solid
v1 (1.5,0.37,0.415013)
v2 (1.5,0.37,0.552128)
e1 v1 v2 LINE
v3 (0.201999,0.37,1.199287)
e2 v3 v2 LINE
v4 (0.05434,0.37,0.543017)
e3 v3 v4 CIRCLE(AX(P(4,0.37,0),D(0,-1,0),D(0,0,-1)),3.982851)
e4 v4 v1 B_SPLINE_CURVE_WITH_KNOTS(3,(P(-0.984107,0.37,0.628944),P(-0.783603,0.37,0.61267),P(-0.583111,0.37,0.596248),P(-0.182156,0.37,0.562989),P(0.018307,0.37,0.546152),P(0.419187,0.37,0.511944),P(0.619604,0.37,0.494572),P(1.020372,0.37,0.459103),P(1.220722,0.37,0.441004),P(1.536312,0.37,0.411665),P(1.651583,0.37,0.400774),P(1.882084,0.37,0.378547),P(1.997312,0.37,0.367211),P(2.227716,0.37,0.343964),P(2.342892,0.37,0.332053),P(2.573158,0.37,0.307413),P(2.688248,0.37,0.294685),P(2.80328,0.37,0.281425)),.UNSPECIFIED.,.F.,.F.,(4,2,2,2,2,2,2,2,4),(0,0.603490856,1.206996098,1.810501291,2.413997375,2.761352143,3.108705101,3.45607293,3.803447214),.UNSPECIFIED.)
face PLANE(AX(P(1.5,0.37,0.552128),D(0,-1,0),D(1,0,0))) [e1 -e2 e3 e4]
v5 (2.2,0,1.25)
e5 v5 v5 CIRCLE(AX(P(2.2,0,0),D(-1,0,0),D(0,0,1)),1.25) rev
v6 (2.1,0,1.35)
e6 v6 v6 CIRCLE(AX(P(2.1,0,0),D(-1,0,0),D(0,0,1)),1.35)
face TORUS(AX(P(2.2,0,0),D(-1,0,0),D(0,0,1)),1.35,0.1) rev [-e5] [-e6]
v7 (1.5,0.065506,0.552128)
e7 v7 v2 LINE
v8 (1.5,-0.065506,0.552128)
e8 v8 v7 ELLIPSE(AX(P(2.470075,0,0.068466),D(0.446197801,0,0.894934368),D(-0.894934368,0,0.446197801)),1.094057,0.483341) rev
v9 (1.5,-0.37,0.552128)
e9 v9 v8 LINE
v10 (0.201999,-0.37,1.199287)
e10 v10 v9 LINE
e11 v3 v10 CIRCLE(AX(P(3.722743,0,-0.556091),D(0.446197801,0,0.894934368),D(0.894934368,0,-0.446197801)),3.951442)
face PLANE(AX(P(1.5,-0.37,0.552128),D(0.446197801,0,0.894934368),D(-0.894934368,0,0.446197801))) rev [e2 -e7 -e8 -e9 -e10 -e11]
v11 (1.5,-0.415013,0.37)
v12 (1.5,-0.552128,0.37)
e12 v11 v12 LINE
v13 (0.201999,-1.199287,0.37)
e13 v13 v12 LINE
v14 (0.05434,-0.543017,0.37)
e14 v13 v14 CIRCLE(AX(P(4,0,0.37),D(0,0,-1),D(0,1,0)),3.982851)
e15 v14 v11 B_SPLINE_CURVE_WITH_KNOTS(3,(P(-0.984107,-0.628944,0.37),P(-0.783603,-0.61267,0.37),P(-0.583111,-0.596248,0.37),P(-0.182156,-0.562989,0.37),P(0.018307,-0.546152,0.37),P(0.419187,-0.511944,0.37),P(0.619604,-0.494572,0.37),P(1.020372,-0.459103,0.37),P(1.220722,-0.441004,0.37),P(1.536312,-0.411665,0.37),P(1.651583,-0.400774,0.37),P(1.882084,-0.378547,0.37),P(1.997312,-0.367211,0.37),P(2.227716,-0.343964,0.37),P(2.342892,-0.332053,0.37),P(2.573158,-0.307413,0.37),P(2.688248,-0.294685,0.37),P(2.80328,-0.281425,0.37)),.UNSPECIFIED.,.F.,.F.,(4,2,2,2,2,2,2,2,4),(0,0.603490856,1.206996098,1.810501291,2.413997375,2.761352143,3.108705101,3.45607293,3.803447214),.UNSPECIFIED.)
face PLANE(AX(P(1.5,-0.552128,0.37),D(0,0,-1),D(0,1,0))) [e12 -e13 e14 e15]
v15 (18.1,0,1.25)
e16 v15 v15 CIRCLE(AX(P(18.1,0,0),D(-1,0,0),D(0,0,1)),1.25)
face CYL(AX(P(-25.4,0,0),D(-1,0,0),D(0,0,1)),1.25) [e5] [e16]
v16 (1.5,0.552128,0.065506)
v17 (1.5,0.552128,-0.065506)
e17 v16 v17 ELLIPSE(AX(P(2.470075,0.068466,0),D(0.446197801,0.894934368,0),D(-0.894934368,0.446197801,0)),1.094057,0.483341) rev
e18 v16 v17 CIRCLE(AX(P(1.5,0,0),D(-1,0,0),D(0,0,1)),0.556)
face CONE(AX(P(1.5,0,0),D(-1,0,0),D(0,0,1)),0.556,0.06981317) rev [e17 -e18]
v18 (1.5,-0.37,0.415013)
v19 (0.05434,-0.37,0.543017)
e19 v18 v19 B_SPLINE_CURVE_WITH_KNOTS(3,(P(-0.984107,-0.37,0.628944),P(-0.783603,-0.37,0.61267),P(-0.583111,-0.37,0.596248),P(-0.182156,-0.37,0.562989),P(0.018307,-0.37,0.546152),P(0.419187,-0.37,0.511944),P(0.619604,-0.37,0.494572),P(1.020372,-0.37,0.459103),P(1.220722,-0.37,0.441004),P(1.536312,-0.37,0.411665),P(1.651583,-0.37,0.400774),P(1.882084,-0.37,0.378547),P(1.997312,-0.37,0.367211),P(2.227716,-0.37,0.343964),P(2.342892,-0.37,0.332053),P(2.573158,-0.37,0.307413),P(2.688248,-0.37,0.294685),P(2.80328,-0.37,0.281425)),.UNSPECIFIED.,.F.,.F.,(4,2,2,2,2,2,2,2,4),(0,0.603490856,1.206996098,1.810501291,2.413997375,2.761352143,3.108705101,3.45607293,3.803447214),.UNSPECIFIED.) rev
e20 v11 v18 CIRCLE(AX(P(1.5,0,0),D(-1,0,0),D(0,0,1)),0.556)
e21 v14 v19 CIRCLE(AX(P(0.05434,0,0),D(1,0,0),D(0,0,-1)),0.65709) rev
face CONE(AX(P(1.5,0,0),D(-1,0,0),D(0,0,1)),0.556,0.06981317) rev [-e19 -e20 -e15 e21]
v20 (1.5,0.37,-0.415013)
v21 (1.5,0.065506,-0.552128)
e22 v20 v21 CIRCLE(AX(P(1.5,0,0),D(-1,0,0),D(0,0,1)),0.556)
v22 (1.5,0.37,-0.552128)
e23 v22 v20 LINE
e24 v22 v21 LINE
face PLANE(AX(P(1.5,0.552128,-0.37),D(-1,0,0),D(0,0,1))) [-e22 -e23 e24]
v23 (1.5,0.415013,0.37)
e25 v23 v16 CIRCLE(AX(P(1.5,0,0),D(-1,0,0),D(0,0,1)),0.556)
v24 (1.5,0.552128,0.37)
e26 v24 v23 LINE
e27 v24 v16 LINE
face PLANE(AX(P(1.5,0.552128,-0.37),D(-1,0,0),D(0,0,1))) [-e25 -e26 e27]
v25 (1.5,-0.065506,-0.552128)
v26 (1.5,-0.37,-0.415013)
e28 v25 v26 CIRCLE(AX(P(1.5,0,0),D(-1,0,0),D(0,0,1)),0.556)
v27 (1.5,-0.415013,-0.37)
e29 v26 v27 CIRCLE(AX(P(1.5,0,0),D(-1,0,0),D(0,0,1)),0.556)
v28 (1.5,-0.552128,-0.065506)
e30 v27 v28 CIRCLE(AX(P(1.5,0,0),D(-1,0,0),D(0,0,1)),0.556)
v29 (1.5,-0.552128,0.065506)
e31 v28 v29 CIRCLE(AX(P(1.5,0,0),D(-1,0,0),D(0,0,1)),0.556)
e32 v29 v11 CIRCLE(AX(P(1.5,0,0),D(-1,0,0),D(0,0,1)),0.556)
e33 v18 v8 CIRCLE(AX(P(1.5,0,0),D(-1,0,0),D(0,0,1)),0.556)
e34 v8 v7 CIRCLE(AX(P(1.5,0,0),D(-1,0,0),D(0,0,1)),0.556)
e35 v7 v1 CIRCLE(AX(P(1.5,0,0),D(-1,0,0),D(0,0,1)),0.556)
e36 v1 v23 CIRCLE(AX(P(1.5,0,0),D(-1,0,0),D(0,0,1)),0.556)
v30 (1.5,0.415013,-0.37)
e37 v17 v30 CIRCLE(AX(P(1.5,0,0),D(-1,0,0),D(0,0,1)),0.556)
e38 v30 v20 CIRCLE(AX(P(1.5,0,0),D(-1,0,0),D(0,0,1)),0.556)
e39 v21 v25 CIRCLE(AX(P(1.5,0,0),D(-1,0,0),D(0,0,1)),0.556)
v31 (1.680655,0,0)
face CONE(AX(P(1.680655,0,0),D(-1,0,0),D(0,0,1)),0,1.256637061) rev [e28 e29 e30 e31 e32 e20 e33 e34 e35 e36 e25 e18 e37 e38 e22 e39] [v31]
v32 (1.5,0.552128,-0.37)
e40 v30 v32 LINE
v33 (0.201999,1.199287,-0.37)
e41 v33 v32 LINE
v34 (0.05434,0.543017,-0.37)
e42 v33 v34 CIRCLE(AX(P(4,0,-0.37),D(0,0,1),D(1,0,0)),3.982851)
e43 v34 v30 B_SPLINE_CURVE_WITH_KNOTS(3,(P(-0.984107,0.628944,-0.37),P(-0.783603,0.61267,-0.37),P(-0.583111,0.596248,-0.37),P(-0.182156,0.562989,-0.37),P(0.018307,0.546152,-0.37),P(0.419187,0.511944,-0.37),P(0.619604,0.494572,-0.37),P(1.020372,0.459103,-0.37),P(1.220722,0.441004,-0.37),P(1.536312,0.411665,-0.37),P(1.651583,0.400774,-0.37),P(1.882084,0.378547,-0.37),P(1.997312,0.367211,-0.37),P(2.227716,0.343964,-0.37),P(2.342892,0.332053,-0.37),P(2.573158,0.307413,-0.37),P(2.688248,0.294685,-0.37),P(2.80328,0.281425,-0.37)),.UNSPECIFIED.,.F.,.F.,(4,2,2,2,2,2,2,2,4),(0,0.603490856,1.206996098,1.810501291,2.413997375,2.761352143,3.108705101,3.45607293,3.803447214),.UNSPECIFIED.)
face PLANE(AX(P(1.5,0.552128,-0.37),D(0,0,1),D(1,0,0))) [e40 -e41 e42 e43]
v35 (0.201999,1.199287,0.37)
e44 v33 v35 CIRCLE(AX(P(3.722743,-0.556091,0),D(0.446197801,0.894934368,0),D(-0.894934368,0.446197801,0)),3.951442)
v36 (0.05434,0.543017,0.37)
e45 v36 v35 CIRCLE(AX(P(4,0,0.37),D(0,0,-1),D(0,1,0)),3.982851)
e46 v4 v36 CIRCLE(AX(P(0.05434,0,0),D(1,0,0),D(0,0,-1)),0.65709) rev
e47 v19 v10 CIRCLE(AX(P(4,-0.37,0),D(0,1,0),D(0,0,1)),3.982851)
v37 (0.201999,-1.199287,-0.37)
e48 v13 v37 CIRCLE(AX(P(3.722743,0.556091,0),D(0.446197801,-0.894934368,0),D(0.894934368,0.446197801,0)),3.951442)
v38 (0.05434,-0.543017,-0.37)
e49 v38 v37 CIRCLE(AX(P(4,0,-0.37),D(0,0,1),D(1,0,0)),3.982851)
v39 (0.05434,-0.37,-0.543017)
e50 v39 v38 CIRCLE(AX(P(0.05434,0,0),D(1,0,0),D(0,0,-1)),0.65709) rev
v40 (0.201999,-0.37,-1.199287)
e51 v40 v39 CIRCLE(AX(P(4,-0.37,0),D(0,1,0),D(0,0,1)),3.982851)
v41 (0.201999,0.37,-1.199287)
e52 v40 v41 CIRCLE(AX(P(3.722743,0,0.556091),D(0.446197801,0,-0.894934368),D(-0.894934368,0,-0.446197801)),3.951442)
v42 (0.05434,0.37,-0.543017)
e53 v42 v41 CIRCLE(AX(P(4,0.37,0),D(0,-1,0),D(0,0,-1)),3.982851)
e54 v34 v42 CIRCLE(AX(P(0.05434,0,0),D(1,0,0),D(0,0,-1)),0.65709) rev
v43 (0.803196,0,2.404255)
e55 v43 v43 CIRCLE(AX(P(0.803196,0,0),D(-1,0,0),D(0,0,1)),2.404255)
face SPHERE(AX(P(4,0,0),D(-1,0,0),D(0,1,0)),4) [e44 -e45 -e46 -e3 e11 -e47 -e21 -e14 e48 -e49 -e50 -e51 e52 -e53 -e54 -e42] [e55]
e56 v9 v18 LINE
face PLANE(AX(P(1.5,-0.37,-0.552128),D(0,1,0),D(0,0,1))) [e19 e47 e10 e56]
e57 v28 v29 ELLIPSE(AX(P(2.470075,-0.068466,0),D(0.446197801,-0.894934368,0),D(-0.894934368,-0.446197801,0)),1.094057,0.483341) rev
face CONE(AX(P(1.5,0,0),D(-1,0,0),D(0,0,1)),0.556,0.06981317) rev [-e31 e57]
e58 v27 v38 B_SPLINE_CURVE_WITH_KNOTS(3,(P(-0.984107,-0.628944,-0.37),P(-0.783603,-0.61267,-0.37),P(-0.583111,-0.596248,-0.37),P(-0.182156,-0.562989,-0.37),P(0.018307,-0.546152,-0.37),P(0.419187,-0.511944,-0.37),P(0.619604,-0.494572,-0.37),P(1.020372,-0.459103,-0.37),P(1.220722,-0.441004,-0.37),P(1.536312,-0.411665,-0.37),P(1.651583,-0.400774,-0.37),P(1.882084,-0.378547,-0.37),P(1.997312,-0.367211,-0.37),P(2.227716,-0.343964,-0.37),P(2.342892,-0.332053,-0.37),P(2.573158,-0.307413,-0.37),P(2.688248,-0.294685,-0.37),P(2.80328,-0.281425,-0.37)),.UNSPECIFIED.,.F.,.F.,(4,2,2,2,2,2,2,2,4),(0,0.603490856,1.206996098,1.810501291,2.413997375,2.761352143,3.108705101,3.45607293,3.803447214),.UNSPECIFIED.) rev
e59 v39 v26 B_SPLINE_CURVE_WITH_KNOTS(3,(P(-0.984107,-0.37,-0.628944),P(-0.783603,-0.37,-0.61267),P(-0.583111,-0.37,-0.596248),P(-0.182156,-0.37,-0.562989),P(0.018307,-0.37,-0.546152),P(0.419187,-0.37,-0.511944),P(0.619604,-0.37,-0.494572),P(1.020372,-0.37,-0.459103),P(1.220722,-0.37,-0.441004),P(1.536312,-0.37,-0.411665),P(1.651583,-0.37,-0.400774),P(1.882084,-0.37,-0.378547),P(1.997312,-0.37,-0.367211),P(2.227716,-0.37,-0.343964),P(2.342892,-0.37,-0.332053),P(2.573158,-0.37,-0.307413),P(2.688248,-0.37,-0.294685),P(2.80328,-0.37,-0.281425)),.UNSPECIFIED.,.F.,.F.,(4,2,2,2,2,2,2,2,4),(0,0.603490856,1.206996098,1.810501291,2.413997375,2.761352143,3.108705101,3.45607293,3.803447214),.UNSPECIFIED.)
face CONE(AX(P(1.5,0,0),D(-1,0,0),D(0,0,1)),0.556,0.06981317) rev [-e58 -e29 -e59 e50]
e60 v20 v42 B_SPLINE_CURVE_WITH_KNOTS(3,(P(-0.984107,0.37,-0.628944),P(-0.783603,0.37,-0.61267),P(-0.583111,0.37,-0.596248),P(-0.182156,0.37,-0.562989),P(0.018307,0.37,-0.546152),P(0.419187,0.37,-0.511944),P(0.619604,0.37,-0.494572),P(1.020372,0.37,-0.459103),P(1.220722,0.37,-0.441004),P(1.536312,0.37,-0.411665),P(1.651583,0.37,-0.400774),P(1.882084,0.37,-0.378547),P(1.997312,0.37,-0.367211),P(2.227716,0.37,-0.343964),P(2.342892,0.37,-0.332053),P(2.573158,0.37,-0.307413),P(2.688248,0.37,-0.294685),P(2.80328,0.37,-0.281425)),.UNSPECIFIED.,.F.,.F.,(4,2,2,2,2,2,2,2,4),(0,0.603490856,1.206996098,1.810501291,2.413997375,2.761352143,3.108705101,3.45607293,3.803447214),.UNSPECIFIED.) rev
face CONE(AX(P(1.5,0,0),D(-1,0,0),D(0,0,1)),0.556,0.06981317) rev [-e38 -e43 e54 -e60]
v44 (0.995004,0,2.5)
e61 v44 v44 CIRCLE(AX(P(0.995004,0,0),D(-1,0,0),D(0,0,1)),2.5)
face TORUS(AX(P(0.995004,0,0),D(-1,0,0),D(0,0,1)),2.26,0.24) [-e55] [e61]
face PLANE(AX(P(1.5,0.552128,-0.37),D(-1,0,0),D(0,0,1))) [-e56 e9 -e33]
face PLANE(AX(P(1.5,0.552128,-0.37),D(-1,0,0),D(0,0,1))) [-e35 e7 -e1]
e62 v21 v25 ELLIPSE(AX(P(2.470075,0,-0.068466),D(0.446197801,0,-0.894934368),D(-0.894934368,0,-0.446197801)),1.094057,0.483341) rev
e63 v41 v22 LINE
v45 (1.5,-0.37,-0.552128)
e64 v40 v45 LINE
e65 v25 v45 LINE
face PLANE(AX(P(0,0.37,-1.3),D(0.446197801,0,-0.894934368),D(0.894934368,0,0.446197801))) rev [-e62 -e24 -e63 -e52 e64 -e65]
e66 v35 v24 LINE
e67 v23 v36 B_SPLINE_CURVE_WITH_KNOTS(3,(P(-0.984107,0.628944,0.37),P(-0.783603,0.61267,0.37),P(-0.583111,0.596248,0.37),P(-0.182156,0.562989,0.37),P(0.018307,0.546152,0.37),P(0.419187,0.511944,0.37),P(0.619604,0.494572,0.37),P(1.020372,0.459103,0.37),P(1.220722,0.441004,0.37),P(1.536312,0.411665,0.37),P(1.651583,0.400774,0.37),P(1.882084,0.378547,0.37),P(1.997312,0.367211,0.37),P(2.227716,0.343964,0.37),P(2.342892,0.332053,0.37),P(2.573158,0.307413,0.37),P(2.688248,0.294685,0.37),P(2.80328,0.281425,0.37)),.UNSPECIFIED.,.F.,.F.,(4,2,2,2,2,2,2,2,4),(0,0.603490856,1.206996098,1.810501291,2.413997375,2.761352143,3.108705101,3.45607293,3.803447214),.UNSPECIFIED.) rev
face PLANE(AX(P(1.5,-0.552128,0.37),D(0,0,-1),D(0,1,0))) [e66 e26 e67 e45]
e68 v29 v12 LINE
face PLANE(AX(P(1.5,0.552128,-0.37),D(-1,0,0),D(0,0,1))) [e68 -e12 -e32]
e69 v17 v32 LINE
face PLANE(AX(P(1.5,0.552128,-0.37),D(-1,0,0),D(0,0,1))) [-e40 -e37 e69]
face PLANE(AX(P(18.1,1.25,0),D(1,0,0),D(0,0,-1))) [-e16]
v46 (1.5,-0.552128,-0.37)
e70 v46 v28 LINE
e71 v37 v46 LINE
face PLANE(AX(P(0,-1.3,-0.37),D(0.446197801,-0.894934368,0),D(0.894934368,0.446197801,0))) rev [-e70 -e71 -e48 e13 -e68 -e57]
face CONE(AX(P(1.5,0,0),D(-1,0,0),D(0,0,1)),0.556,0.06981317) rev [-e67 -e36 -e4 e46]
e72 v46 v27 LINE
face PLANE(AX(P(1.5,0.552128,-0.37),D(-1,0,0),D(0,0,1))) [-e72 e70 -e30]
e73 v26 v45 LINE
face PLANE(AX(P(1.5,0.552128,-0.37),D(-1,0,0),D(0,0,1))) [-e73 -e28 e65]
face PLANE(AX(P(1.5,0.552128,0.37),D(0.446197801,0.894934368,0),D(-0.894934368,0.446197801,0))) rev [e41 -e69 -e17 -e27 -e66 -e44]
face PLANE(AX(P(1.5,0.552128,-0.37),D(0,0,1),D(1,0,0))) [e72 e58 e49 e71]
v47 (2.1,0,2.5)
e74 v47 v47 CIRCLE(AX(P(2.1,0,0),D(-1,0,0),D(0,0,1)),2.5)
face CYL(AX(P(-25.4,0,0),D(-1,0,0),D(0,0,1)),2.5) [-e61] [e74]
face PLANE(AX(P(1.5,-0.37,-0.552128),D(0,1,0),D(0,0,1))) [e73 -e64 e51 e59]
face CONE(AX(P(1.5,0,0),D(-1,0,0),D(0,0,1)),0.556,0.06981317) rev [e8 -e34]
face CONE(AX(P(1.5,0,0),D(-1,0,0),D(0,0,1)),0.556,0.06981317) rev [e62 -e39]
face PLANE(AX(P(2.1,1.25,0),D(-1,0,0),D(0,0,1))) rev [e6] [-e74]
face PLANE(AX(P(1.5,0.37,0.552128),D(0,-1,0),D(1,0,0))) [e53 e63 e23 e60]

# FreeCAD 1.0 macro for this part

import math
import FreeCAD as App
import Part
import Sketcher

V = App.Vector
Q = App.Units.Quantity


def edges_at(feature, points):
    """Names of the edges that pass closest to the given points."""
    edges = feature.Shape.Edges
    near = lambda p: min(range(len(edges)), key=lambda i: edges[i].distToShape(Part.Vertex(*p))[0])
    return sorted({f"Edge{near(p) + 1}" for p in points})

doc = App.newDocument("Part")
params = doc.addObject("Spreadsheet::Sheet", "Params")
for row, (alias, value) in enumerate([
    ("sketch1_radius", "4 mm"),
    ("sketch1_width", "16 mm"),
    ("sketch1_radius2", "0.24 mm"),
    ("sketch1_width2", "18.1 mm"),
    ("sketch1_height", "1.25 mm"),
    ("revolution_angle", "360 deg"),
    ("fillet_radius", "0.1 mm"),
    ("sketch2_width", "2.6 mm"),
    ("sketch2_height", "0.74 mm"),
    ("sketch3_height", "0.74 mm"),
    ("groove_angle", "360 deg"),
], start=1):
    params.set(f"A{row}", alias)
    params.set(f"B{row}", "=" + value)
    params.setAlias(f"B{row}", alias)

body = doc.addObject("PartDesign::Body", "Body")

# Sketch on XY plane
sketch1 = body.newObject("Sketcher::SketchObject", "Sketch")
sketch1.AttachmentSupport = (doc.getObject("XY_Plane"), [""])
sketch1.MapMode = "FlatFace"
sketch1.addGeometry([
    Part.LineSegment(V(2.1, 1.25, 0), V(2.1, 2.5, 0)),  # 0
    Part.LineSegment(V(2.1, 2.5, 0), V(1, 2.5, 0)),  # 1
    Part.ArcOfCircle(Part.Circle(V(1, 2.26, 0), V(0, 0, 1), 0.24), math.radians(90), math.radians(143)),  # 2
    Part.ArcOfCircle(Part.Circle(V(4, 0, 0), V(0, 0, 1), 4), math.radians(143), math.radians(180)),  # 3
    Part.LineSegment(V(0, 0, 0), V(18.1, 0, 0)),  # 4
    Part.LineSegment(V(18.1, 0, 0), V(18.1, 1.25, 0)),  # 5
    Part.LineSegment(V(18.1, 1.25, 0), V(2.1, 1.25, 0)),  # 6
], False)
sketch1.addConstraint([
    Sketcher.Constraint("Coincident", 0, 2, 1, 1),
    Sketcher.Constraint("Tangent", 1, 2, 2, 1),
    Sketcher.Constraint("Tangent", 2, 2, 3, 1),
    Sketcher.Constraint("Coincident", 3, 2, 4, 1),
    Sketcher.Constraint("Coincident", 4, 2, 5, 1),
    Sketcher.Constraint("Coincident", 5, 2, 6, 1),
    Sketcher.Constraint("Coincident", 6, 2, 0, 1),
    Sketcher.Constraint("Vertical", 0),
    Sketcher.Constraint("Horizontal", 1),
    Sketcher.Constraint("Horizontal", 4),
    Sketcher.Constraint("Vertical", 5),
    Sketcher.Constraint("Horizontal", 6),
    Sketcher.Constraint("Coincident", 3, 2, -1, 1),
    Sketcher.Constraint("PointOnObject", 3, 3, -1),
    Sketcher.Constraint("Equal", 0, 5),
    Sketcher.Constraint("Radius", 3, 4.0),
    Sketcher.Constraint("DistanceX", 6, 2, 6, 1, 16.0),
    Sketcher.Constraint("Radius", 2, 0.24),
    Sketcher.Constraint("DistanceX", 4, 1, 4, 2, 18.1),
    Sketcher.Constraint("DistanceY", 0, 1, 0, 2, 1.25),
])
sketch1.setExpression("Constraints[15]", "Params.sketch1_radius")
sketch1.setExpression("Constraints[16]", "Params.sketch1_width")
sketch1.setExpression("Constraints[17]", "Params.sketch1_radius2")
sketch1.setExpression("Constraints[18]", "Params.sketch1_width2")
sketch1.setExpression("Constraints[19]", "Params.sketch1_height")
revolution = body.newObject("PartDesign::Revolution", "Revolution")
revolution.Profile = sketch1
revolution.ReferenceAxis = (sketch1, ["H_Axis"])
revolution.setExpression("Angle", "Params.revolution_angle")
doc.recompute()

fillet = body.newObject("PartDesign::Fillet", "Fillet")
fillet.Base = (revolution, edges_at(revolution, [(2.1, 0, -1.25)]))
fillet.setExpression("Radius", "Params.fillet_radius")

# Sketch on YZ plane
sketch2 = body.newObject("Sketcher::SketchObject", "Sketch001")
sketch2.AttachmentSupport = (doc.getObject("YZ_Plane"), [""])
sketch2.MapMode = "FlatFace"
sketch2.addGeometry([
    Part.LineSegment(V(-1.3, 0.4, 0), V(-1.3, -0.4, 0)),
    Part.LineSegment(V(-1.3, -0.4, 0), V(1.3, -0.4, 0)),
    Part.LineSegment(V(1.3, -0.4, 0), V(1.3, 0.4, 0)),
    Part.LineSegment(V(1.3, 0.4, 0), V(-1.3, 0.4, 0)),
], False)
sketch2.addConstraint([
    Sketcher.Constraint("Coincident", 0, 2, 1, 1),
    Sketcher.Constraint("Coincident", 1, 2, 2, 1),
    Sketcher.Constraint("Coincident", 2, 2, 3, 1),
    Sketcher.Constraint("Coincident", 3, 2, 0, 1),
    Sketcher.Constraint("Vertical", 0),
    Sketcher.Constraint("Horizontal", 1),
    Sketcher.Constraint("Vertical", 2),
    Sketcher.Constraint("Horizontal", 3),
    Sketcher.Constraint("Symmetric", 0, 2, 2, 2, -1, 1),
    Sketcher.Constraint("DistanceX", 1, 1, 1, 2, 2.6),
    Sketcher.Constraint("DistanceY", 0, 2, 0, 1, 0.74),
])
sketch2.setExpression("Constraints[9]", "Params.sketch2_width")
sketch2.setExpression("Constraints[10]", "Params.sketch2_height")

# Sketch on YZ plane
sketch3 = body.newObject("Sketcher::SketchObject", "Sketch002")
sketch3.AttachmentSupport = (doc.getObject("YZ_Plane"), [""])
sketch3.MapMode = "FlatFace"
sketch3.AttachmentOffset = App.Placement(V(0, 0, 1.5), App.Rotation())
sketch3.addGeometry([
    Part.LineSegment(V(-0.6, 0.4, 0), V(-0.6, -0.4, 0)),
    Part.LineSegment(V(-0.6, -0.4, 0), V(0.6, -0.4, 0)),
    Part.LineSegment(V(0.6, -0.4, 0), V(0.6, 0.4, 0)),
    Part.LineSegment(V(0.6, 0.4, 0), V(-0.6, 0.4, 0)),
], False)
sketch3.addConstraint([
    Sketcher.Constraint("Coincident", 0, 2, 1, 1),
    Sketcher.Constraint("Coincident", 1, 2, 2, 1),
    Sketcher.Constraint("Coincident", 2, 2, 3, 1),
    Sketcher.Constraint("Coincident", 3, 2, 0, 1),
    Sketcher.Constraint("Vertical", 0),
    Sketcher.Constraint("Horizontal", 1),
    Sketcher.Constraint("Vertical", 2),
    Sketcher.Constraint("Horizontal", 3),
    Sketcher.Constraint("Symmetric", 0, 2, 2, 2, -1, 1),
    Sketcher.Constraint("DistanceY", 0, 2, 0, 1, 0.74),
    Sketcher.Constraint("DistanceX", 1, 1, 1, 2, 1.104255),
])
sketch3.setExpression("Constraints[9]", "Params.sketch3_height")

subtractiveloft = body.newObject("PartDesign::SubtractiveLoft", "SubtractiveLoft")
subtractiveloft.Profile = sketch2
subtractiveloft.Sections = [sketch3]
doc.recompute()

polarpattern = body.newObject("PartDesign::PolarPattern", "PolarPattern")
polarpattern.Originals = [subtractiveloft]
polarpattern.Axis = (doc.getObject("X_Axis"), [""])
polarpattern.Angle = 90
polarpattern.Occurrences = 2
body.Tip = polarpattern

# Sketch on XY plane
sketch4 = body.newObject("Sketcher::SketchObject", "Sketch003")
sketch4.AttachmentSupport = (doc.getObject("XY_Plane"), [""])
sketch4.MapMode = "FlatFace"
sketch4.addGeometry([
    Part.LineSegment(V(0, 0.7, 0), V(0, 0, 0)),
    Part.LineSegment(V(0, 0, 0), V(1.7, 0, 0)),
    Part.LineSegment(V(1.7, 0, 0), V(1.5, 0.6, 0)),
    Part.LineSegment(V(1.5, 0.6, 0), V(0, 0.7, 0)),
], False)
sketch4.addConstraint([
    Sketcher.Constraint("Coincident", 0, 2, 1, 1),
    Sketcher.Constraint("Coincident", 1, 2, 2, 1),
    Sketcher.Constraint("Coincident", 2, 2, 3, 1),
    Sketcher.Constraint("Coincident", 3, 2, 0, 1),
    Sketcher.Constraint("Vertical", 0),
    Sketcher.Constraint("Horizontal", 1),
    Sketcher.Constraint("Coincident", 0, 2, -1, 1),
    Sketcher.Constraint("Angle", 2, Q("108 deg")),
    Sketcher.Constraint("Angle", 3, Q("176 deg")),
    Sketcher.Constraint("DistanceX", -1, 1, 2, 2, 1.5),
    Sketcher.Constraint("DistanceY", -1, 1, 2, 2, 0.556),
])
groove = body.newObject("PartDesign::Groove", "Groove")
groove.Profile = sketch4
groove.ReferenceAxis = (sketch4, ["H_Axis"])
groove.setExpression("Angle", "Params.groove_angle")

doc.recompute()
